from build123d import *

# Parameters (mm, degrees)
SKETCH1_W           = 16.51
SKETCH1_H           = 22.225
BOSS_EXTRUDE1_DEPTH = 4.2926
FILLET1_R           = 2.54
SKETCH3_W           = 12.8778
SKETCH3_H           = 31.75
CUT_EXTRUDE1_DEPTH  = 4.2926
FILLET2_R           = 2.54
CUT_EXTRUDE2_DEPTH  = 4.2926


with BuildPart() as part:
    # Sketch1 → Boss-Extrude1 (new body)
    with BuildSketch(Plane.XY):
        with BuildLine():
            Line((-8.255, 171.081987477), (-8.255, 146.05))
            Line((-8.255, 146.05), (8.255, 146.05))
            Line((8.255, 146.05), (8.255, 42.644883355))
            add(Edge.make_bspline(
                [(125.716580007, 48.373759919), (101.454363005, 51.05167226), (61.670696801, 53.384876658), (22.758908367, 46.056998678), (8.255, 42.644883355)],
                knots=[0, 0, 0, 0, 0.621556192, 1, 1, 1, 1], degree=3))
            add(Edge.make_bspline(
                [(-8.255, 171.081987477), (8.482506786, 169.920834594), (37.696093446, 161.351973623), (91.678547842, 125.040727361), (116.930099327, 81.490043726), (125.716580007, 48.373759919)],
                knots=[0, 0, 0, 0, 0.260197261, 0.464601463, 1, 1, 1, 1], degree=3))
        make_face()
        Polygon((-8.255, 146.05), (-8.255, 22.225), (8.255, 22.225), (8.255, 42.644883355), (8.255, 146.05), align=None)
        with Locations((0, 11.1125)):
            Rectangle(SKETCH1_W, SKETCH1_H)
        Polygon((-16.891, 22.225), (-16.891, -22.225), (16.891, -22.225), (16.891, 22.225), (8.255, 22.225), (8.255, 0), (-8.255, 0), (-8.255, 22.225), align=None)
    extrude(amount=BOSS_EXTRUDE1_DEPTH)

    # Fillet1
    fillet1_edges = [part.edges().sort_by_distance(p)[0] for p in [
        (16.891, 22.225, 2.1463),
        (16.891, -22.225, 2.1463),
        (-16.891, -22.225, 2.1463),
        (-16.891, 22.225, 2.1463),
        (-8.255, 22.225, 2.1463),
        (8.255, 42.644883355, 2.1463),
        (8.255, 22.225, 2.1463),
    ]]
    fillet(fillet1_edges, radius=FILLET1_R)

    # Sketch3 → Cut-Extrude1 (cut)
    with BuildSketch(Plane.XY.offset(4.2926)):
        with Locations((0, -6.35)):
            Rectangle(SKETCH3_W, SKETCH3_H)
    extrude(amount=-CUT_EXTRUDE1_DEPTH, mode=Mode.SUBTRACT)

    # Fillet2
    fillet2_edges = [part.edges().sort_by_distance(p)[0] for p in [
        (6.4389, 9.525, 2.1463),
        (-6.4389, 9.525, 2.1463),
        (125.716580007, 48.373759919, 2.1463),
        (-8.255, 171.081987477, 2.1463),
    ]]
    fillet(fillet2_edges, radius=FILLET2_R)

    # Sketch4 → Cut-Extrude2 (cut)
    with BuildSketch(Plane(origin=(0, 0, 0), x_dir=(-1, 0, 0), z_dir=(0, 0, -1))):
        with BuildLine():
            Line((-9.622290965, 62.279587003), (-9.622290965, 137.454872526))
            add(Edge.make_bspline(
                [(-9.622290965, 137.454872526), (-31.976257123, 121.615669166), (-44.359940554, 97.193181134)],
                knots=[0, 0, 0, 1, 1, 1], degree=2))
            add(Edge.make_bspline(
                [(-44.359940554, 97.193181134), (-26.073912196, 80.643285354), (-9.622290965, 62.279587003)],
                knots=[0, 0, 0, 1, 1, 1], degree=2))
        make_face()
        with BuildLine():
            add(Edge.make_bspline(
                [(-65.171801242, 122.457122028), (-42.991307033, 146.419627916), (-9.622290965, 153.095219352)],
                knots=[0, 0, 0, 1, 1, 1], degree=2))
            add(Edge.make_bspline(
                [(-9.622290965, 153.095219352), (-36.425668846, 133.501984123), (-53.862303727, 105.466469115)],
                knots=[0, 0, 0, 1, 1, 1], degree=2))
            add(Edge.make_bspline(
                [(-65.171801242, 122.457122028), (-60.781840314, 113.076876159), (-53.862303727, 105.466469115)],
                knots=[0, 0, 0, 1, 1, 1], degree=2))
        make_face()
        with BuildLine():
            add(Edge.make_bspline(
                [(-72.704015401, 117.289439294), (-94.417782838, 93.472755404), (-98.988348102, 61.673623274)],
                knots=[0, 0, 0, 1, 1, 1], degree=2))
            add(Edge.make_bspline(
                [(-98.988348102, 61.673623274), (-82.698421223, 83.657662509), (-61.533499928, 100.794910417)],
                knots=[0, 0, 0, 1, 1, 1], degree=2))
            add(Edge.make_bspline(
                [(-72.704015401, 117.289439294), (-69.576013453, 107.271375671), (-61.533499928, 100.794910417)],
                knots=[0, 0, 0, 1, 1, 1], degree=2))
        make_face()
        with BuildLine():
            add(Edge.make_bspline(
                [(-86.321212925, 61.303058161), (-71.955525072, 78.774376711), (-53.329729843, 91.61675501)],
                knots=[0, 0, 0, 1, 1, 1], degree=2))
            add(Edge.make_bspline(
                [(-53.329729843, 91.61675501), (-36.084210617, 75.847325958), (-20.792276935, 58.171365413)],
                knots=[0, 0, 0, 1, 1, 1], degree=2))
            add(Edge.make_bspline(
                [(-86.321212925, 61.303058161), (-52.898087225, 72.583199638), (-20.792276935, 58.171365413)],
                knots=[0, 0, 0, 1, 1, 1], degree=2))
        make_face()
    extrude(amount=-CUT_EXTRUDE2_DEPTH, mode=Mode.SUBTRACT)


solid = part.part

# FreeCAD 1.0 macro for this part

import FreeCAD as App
import Part
import Sketcher

V = App.Vector
Q = App.Units.Quantity


def edges_at(feature, points):
    """Names of the edges that pass closest to the given points."""
    edges = feature.Shape.Edges
    near = lambda p: min(range(len(edges)), key=lambda i: edges[i].distToShape(Part.Vertex(*p))[0])
    return sorted({f"Edge{near(p) + 1}" for p in points})


def add_polygon(sketch, points):
    """Adds a closed chain of lines whose ends are joined by coincident constraints."""
    first, n = sketch.GeometryCount, len(points)
    for a, b in zip(points, points[1:] + points[:1]):
        sketch.addGeometry(Part.LineSegment(App.Vector(*a, 0), App.Vector(*b, 0)), False)
    for i in range(n):
        sketch.addConstraint(Sketcher.Constraint("Coincident", first + i, 2, first + (i + 1) % n, 1))

doc = App.newDocument("Part")
body = doc.addObject("PartDesign::Body", "Body")

# Sketch on XY plane
sketch1 = doc.addObject("Sketcher::SketchObject", "Sketch")
body.addObject(sketch1)
sketch1.AttachmentSupport = (doc.XY_Plane, [""])
sketch1.MapMode = "FlatFace"
sketch1.addGeometry([
    Part.LineSegment(V(-8.255, 171.081987, 0), V(-8.255, 22.225, 0)),  # 0
    Part.LineSegment(V(-8.255, 22.225, 0), V(-16.891, 22.225, 0)),  # 1
    Part.LineSegment(V(-16.891, 22.225, 0), V(-16.891, -22.225, 0)),  # 2
    Part.LineSegment(V(-16.891, -22.225, 0), V(16.891, -22.225, 0)),  # 3
    Part.LineSegment(V(16.891, -22.225, 0), V(16.891, 22.225, 0)),  # 4
    Part.LineSegment(V(16.891, 22.225, 0), V(8.255, 22.225, 0)),  # 5
    Part.LineSegment(V(8.255, 22.225, 0), V(8.255, 42.644883, 0)),  # 6
    Part.BSplineCurve([V(125.71658, 48.37376, 0), V(101.454363, 51.051672, 0), V(61.670697, 53.384877, 0), V(22.758908, 46.056999, 0), V(8.255, 42.644883, 0)], [4, 1, 4], [0, 0.621556192, 1], False, 3, [1, 1, 1, 1, 1], False),  # 7
    Part.BSplineCurve([V(-8.255, 171.081987, 0), V(8.482507, 169.920835, 0), V(37.696093, 161.351974, 0), V(91.678548, 125.040727, 0), V(116.930099, 81.490044, 0), V(125.71658, 48.37376, 0)], [4, 1, 1, 4], [0, 0.260197261, 0.464601463, 1], False, 3, [1, 1, 1, 1, 1, 1], False),  # 8
], False)
sketch1.addConstraint([
    Sketcher.Constraint("Block", 7),
    Sketcher.Constraint("Block", 8),
    Sketcher.Constraint("Coincident", 0, 2, 1, 1),
    Sketcher.Constraint("Coincident", 1, 2, 2, 1),
    Sketcher.Constraint("Coincident", 2, 2, 3, 1),
    Sketcher.Constraint("Coincident", 3, 2, 4, 1),
    Sketcher.Constraint("Coincident", 4, 2, 5, 1),
    Sketcher.Constraint("Coincident", 5, 2, 6, 1),
    Sketcher.Constraint("Coincident", 6, 2, 7, 2),
    Sketcher.Constraint("Coincident", 8, 1, 0, 1),
    Sketcher.Constraint("Vertical", 0),
    Sketcher.Constraint("Horizontal", 1),
    Sketcher.Constraint("Vertical", 2),
    Sketcher.Constraint("Horizontal", 3),
    Sketcher.Constraint("Vertical", 4),
    Sketcher.Constraint("Horizontal", 5),
    Sketcher.Constraint("Vertical", 6),
    Sketcher.Constraint("Symmetric", 1, 2, 3, 2, -1, 1),
    Sketcher.Constraint("Horizontal", 1, 2, 4, 2),
    Sketcher.Constraint("DistanceX", 1, 2, 1, 1, Q("0.34 in")),
    Sketcher.Constraint("DistanceY", 2, 2, 2, 1, Q("1.75 in")),
])
pad1 = doc.addObject("PartDesign::Pad", "Pad")
body.addObject(pad1)
pad1.Profile = sketch1
pad1.Length = Q("0.169 in")
doc.recompute()

fillet = doc.addObject("PartDesign::Fillet", "Fillet")
body.addObject(fillet)
fillet.Base = (pad1, edges_at(pad1, [
    (16.891, 22.225, 2.146),
    (16.891, -22.225, 2.146),
    (-16.891, -22.225, 2.146),
    (-16.891, 22.225, 2.146),
    (-8.255, 22.225, 2.146),
    (8.255, 42.645, 2.146),
    (8.255, 22.225, 2.146),
]))
fillet.Radius = Q("0.1 in")

# Sketch on XY plane
sketch2 = doc.addObject("Sketcher::SketchObject", "Sketch001")
body.addObject(sketch2)
sketch2.AttachmentSupport = (doc.XY_Plane, [""])
sketch2.MapMode = "FlatFace"
sketch2.AttachmentOffset = App.Placement(V(0, 0, 0.169 * 25.4), App.Rotation())
add_polygon(sketch2, [(-6, 10), (-6, -22), (6, -22), (6, 10)])  # lines 0-3
sketch2.addConstraint([
    Sketcher.Constraint("Vertical", 0),
    Sketcher.Constraint("Horizontal", 1),
    Sketcher.Constraint("Vertical", 2),
    Sketcher.Constraint("Horizontal", 3),
    Sketcher.Constraint("DistanceY", 0, 2, 0, 1, Q("1.25 in")),
    Sketcher.Constraint("DistanceX", 1, 1, 1, 2, Q("0.507 in")),
    Sketcher.Constraint("DistanceY", 0, 2, -1, 1, Q("0.875 in")),
    Sketcher.Constraint("DistanceX", 0, 2, -1, 1, Q("0.2535 in")),
])
pocket1 = doc.addObject("PartDesign::Pocket", "Pocket")
body.addObject(pocket1)
pocket1.Profile = sketch2
pocket1.Length = Q("0.169 in")
doc.recompute()

fillet2 = doc.addObject("PartDesign::Fillet", "Fillet001")
body.addObject(fillet2)
fillet2.Base = (pocket1, edges_at(pocket1, [
    (6.439, 9.525, 2.146),
    (-6.439, 9.525, 2.146),
    (125.717, 48.374, 2.146),
    (-8.255, 171.082, 2.146),
]))
fillet2.Radius = Q("0.1 in")

# Sketch on XY plane
sketch3 = doc.addObject("Sketcher::SketchObject", "Sketch002")
body.addObject(sketch3)
sketch3.AttachmentSupport = (doc.XY_Plane, [""])
sketch3.MapMode = "FlatFace"
sketch3.addGeometry([
    Part.LineSegment(V(9.622291, 62.279587, 0), V(9.622291, 137.454873, 0)),  # 0
    Part.BSplineCurve([V(9.622291, 137.454873, 0), V(31.976257, 121.615669, 0), V(44.359941, 97.193181, 0)], [3, 3], [0, 1], False, 2, [1, 1, 1], False),  # 1
    Part.BSplineCurve([V(44.359941, 97.193181, 0), V(26.073912, 80.643285, 0), V(9.622291, 62.279587, 0)], [3, 3], [0, 1], False, 2, [1, 1, 1], False),  # 2
    Part.BSplineCurve([V(65.171801, 122.457122, 0), V(42.991307, 146.419628, 0), V(9.622291, 153.095219, 0)], [3, 3], [0, 1], False, 2, [1, 1, 1], False),  # 3
    Part.BSplineCurve([V(65.171801, 122.457122, 0), V(60.78184, 113.076876, 0), V(53.862304, 105.466469, 0)], [3, 3], [0, 1], False, 2, [1, 1, 1], False),  # 4
    Part.BSplineCurve([V(9.622291, 153.095219, 0), V(36.425669, 133.501984, 0), V(53.862304, 105.466469, 0)], [3, 3], [0, 1], False, 2, [1, 1, 1], False),  # 5
    Part.BSplineCurve([V(72.704015, 117.289439, 0), V(94.417783, 93.472755, 0), V(98.988348, 61.673623, 0)], [3, 3], [0, 1], False, 2, [1, 1, 1], False),  # 6
    Part.BSplineCurve([V(98.988348, 61.673623, 0), V(82.698421, 83.657663, 0), V(61.5335, 100.79491, 0)], [3, 3], [0, 1], False, 2, [1, 1, 1], False),  # 7
    Part.BSplineCurve([V(72.704015, 117.289439, 0), V(69.576013, 107.271376, 0), V(61.5335, 100.79491, 0)], [3, 3], [0, 1], False, 2, [1, 1, 1], False),  # 8
    Part.BSplineCurve([V(86.321213, 61.303058, 0), V(71.955525, 78.774377, 0), V(53.32973, 91.616755, 0)], [3, 3], [0, 1], False, 2, [1, 1, 1], False),  # 9
    Part.BSplineCurve([V(86.321213, 61.303058, 0), V(52.898087, 72.5832, 0), V(20.792277, 58.171365, 0)], [3, 3], [0, 1], False, 2, [1, 1, 1], False),  # 10
    Part.BSplineCurve([V(53.32973, 91.616755, 0), V(36.084211, 75.847326, 0), V(20.792277, 58.171365, 0)], [3, 3], [0, 1], False, 2, [1, 1, 1], False),  # 11
], False)
sketch3.addConstraint([
    Sketcher.Constraint("Block", 1),
    Sketcher.Constraint("Block", 2),
    Sketcher.Constraint("Block", 3),
    Sketcher.Constraint("Block", 4),
    Sketcher.Constraint("Block", 5),
    Sketcher.Constraint("Block", 6),
    Sketcher.Constraint("Block", 7),
    Sketcher.Constraint("Block", 8),
    Sketcher.Constraint("Block", 9),
    Sketcher.Constraint("Block", 10),
    Sketcher.Constraint("Block", 11),
    Sketcher.Constraint("Coincident", 0, 2, 1, 1),
    Sketcher.Constraint("Coincident", 2, 2, 0, 1),
])
pocket2 = doc.addObject("PartDesign::Pocket", "Pocket001")
body.addObject(pocket2)
pocket2.Profile = sketch3
pocket2.Length = Q("0.169 in")
pocket2.Reversed = True

doc.recompute()
